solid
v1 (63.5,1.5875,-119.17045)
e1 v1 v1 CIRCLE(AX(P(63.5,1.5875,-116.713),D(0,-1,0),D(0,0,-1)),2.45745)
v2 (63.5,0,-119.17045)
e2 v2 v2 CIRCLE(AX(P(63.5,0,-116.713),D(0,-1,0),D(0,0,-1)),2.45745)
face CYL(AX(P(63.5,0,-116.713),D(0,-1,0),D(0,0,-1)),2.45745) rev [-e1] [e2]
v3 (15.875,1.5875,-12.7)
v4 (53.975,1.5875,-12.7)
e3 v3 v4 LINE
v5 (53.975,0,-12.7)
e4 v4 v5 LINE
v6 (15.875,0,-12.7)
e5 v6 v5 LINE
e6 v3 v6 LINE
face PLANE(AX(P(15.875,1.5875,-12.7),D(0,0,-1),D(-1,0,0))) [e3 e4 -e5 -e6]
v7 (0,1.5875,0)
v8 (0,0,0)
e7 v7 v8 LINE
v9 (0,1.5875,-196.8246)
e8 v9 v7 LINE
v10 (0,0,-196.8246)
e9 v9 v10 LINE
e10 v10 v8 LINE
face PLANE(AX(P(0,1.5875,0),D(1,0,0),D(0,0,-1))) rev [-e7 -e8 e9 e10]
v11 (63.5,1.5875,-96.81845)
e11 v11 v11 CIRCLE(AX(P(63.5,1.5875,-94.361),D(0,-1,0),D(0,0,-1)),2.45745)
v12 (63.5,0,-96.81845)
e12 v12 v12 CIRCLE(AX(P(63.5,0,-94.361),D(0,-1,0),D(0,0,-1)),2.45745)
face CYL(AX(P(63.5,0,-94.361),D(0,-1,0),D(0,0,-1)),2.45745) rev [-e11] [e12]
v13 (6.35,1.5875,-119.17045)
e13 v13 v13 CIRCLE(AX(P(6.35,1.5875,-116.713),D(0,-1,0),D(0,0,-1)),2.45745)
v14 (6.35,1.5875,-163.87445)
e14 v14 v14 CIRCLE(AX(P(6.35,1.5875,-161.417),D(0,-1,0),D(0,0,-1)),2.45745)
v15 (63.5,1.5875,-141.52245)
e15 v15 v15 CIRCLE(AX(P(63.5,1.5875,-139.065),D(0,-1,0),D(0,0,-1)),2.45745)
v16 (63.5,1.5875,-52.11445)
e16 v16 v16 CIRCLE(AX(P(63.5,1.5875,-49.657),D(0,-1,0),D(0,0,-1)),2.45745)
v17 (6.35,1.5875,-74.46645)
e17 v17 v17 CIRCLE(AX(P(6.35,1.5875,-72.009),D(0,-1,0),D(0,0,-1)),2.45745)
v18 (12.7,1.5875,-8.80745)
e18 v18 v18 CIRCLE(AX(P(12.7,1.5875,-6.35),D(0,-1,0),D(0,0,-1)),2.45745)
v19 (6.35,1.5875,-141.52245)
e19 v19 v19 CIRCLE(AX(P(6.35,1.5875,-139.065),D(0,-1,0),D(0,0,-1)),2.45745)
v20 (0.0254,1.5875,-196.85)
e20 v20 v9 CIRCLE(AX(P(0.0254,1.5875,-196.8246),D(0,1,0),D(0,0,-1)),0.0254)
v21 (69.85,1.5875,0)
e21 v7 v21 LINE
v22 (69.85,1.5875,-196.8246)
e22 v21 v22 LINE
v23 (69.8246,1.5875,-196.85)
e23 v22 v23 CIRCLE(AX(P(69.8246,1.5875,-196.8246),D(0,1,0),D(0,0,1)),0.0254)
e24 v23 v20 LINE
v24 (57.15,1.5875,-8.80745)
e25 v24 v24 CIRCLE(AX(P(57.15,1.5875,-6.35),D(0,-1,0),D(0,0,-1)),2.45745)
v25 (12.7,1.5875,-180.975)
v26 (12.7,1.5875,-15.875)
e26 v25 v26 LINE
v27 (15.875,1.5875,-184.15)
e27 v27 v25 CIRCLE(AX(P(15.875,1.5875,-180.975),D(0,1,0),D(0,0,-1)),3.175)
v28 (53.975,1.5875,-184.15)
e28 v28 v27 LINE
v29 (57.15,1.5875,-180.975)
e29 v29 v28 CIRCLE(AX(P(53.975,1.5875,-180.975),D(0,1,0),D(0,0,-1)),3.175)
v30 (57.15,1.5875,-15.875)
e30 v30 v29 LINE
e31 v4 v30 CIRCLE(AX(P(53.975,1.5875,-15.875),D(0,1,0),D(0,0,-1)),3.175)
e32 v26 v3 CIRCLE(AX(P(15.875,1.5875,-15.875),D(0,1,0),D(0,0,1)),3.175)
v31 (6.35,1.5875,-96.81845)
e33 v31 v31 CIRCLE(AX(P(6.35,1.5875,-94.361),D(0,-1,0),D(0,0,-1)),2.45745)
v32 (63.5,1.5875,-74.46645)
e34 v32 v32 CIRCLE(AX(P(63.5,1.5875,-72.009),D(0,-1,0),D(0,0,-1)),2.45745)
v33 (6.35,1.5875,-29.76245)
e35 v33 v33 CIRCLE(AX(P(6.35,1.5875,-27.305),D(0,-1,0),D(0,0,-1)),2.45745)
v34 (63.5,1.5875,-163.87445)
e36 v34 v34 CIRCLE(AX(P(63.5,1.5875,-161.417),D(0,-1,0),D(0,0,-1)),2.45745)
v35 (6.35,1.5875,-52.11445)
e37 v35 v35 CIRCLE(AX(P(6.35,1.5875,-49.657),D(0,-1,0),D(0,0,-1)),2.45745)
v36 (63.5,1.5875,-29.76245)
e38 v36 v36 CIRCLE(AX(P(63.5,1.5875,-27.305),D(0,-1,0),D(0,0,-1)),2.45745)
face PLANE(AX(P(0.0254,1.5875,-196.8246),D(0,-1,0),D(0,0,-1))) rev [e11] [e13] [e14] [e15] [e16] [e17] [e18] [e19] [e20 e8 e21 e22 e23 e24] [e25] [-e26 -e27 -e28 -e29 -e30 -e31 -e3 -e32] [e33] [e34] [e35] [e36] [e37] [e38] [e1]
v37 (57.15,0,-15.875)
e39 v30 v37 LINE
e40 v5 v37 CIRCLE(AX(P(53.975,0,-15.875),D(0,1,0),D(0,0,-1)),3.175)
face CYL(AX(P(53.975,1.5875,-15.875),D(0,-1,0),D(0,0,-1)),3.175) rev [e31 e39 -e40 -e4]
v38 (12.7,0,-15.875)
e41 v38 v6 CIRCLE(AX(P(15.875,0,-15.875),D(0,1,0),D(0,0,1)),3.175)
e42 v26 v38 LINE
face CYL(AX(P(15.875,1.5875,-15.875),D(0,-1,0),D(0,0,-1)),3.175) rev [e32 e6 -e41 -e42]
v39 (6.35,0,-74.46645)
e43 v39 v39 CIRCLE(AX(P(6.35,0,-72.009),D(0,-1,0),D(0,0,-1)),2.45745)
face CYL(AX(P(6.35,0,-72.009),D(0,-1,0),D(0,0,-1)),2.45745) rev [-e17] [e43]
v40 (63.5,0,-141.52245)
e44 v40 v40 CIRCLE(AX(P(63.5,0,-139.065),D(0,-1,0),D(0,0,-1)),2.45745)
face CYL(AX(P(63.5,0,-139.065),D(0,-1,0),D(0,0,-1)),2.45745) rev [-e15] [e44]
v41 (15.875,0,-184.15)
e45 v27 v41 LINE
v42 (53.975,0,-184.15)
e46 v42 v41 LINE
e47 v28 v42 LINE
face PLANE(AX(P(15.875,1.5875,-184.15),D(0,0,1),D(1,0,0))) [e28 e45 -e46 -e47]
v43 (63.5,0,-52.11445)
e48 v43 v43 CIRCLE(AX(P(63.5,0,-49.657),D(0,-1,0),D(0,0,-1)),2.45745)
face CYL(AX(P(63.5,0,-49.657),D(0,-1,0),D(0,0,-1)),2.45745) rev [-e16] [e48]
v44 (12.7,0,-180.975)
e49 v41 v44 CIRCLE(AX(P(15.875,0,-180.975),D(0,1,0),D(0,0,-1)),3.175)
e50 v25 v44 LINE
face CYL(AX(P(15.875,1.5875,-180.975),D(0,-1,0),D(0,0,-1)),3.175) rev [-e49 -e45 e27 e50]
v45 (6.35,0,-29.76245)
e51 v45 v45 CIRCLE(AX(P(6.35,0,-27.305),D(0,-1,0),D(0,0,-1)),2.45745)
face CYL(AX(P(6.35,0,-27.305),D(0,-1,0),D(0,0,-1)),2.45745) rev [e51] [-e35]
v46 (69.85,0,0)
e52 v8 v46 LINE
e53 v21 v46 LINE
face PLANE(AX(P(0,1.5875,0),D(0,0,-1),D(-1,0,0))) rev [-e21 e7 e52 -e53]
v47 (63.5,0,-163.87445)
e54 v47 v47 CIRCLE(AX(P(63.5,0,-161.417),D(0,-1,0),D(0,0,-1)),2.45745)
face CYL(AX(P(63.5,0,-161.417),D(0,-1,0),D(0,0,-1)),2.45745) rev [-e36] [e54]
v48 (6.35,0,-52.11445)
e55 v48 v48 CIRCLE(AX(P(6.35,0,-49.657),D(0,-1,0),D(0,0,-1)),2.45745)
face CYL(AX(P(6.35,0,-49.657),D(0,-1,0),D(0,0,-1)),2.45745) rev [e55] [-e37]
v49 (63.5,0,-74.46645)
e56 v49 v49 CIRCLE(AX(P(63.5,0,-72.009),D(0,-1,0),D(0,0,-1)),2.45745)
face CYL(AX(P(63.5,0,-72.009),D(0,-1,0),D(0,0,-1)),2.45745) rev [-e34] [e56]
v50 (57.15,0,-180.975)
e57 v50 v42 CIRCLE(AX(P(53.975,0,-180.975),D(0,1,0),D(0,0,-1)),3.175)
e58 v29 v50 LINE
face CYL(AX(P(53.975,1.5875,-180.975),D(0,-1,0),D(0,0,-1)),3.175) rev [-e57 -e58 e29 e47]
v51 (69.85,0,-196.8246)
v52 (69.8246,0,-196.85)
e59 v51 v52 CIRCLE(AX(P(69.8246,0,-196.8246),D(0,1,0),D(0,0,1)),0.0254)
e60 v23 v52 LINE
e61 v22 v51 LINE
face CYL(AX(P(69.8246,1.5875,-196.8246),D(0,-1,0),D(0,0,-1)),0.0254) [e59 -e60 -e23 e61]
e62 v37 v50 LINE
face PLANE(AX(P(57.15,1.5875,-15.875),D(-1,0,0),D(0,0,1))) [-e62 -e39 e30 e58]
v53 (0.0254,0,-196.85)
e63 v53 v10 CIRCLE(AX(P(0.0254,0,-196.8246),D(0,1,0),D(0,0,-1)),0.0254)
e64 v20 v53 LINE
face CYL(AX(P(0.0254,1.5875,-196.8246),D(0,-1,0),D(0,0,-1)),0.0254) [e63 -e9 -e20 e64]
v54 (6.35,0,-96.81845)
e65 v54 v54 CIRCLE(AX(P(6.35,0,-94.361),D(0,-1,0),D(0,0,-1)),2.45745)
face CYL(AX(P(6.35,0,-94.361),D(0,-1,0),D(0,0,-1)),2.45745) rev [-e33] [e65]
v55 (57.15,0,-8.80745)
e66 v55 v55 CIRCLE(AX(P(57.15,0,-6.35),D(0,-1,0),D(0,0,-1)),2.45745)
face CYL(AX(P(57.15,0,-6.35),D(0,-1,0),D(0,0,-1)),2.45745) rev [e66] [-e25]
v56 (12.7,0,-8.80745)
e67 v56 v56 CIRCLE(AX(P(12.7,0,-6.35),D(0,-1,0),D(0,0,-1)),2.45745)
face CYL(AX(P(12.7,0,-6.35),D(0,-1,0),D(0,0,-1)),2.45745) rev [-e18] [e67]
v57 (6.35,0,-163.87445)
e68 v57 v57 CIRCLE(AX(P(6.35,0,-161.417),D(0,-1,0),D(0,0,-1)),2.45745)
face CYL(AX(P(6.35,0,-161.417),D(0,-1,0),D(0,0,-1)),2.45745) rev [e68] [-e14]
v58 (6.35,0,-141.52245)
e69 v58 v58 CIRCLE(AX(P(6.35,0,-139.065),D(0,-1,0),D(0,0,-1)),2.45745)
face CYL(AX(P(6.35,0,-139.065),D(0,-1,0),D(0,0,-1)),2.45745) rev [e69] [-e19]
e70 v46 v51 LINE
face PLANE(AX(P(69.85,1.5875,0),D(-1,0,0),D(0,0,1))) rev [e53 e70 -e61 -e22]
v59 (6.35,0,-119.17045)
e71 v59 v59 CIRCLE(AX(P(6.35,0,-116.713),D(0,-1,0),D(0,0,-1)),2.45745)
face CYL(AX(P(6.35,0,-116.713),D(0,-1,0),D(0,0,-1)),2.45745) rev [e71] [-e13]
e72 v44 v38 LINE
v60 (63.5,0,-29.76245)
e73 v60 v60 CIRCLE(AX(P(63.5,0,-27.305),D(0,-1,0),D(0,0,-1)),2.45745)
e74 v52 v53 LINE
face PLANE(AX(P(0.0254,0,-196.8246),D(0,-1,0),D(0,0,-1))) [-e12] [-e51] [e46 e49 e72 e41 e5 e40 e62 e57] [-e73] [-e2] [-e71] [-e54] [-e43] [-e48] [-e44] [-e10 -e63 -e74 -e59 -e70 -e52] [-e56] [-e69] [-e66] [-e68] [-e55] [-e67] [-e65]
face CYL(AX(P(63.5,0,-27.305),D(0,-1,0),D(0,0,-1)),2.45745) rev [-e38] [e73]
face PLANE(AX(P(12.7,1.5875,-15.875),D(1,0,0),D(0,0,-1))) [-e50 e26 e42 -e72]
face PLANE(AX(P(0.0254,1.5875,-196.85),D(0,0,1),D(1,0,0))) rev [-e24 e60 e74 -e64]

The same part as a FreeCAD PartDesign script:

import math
import FreeCAD as App
import Part
import Sketcher

V = App.Vector
Q = App.Units.Quantity

doc = App.newDocument("Part")
body = doc.addObject("PartDesign::Body", "Body")

sketch1 = doc.addObject("Sketcher::SketchObject", "Sketch")
body.addObject(sketch1)
sketch1.AttachmentSupport = (doc.XZ_Plane, [""])
sketch1.MapMode = "FlatFace"
sketch1.addGeometry([
    Part.LineSegment(V(0, 0, 0), V(69.85, 0, 0)),
    Part.LineSegment(V(69.85, 0, 0), V(69.85, -196.8246, 0)),
    Part.ArcOfCircle(Part.Circle(V(69.8246, -196.8246, 0), V(0, 0, 1), 0.0254), math.radians(-89.999998), math.radians(-0.000002)),
    Part.LineSegment(V(69.8246, -196.85, 0), V(0.0254, -196.85, 0)),
    Part.ArcOfCircle(Part.Circle(V(0.0254, -196.8246, 0), V(0, 0, 1), 0.0254), math.radians(-179.999998), math.radians(-90.000002)),
    Part.LineSegment(V(0, -196.8246, 0), V(0, 0, 0)),
    Part.ArcOfCircle(Part.Circle(V(15.875, -15.875, 0), V(0, 0, 1), 3.175), math.radians(90), math.radians(180)),
    Part.LineSegment(V(12.7, -15.875, 0), V(12.7, -180.975, 0)),
    Part.ArcOfCircle(Part.Circle(V(15.875, -180.975, 0), V(0, 0, 1), 3.175), math.radians(-180), math.radians(-90)),
    Part.LineSegment(V(15.875, -184.15, 0), V(53.975, -184.15, 0)),
    Part.ArcOfCircle(Part.Circle(V(53.975, -180.975, 0), V(0, 0, 1), 3.175), math.radians(-90), math.radians(0)),
    Part.LineSegment(V(57.15, -180.975, 0), V(57.15, -15.875, 0)),
    Part.ArcOfCircle(Part.Circle(V(53.975, -15.875, 0), V(0, 0, 1), 3.175), math.radians(0), math.radians(90)),
    Part.LineSegment(V(53.975, -12.7, 0), V(15.875, -12.7, 0)),
], False)
sketch1.addConstraint([
    Sketcher.Constraint("Coincident", 0, 2, 1, 1),
    Sketcher.Constraint("Tangent", 1, 2, 2, 2),
    Sketcher.Constraint("Tangent", 2, 1, 3, 1),
    Sketcher.Constraint("Tangent", 3, 2, 4, 2),
    Sketcher.Constraint("Tangent", 4, 1, 5, 1),
    Sketcher.Constraint("Coincident", 5, 2, 0, 1),
    Sketcher.Constraint("Tangent", 6, 2, 7, 1),
    Sketcher.Constraint("Tangent", 7, 2, 8, 1),
    Sketcher.Constraint("Tangent", 8, 2, 9, 1),
    Sketcher.Constraint("Tangent", 9, 2, 10, 1),
    Sketcher.Constraint("Tangent", 10, 2, 11, 1),
    Sketcher.Constraint("Tangent", 11, 2, 12, 1),
    Sketcher.Constraint("Tangent", 12, 2, 13, 1),
    Sketcher.Constraint("Tangent", 13, 2, 6, 1),
    Sketcher.Constraint("Horizontal", 0),
    Sketcher.Constraint("Vertical", 1),
    Sketcher.Constraint("Horizontal", 3),
    Sketcher.Constraint("Vertical", 5),
    Sketcher.Constraint("Vertical", 7),
    Sketcher.Constraint("Horizontal", 9),
    Sketcher.Constraint("Vertical", 11),
    Sketcher.Constraint("Horizontal", 13),
    Sketcher.Constraint("Coincident", 5, 2, -1, 1),
    Sketcher.Constraint("Equal", 2, 4),
    Sketcher.Constraint("Equal", 6, 8),
    Sketcher.Constraint("Equal", 8, 10),
    Sketcher.Constraint("Equal", 10, 12),
    Sketcher.Constraint("DistanceX", 9, 1, 9, 2, Q("1.5 in")),
    Sketcher.Constraint("DistanceY", 7, 2, 7, 1, Q("6.5 in")),
    Sketcher.Constraint("Radius", 2, Q("0.001 in")),
    Sketcher.Constraint("Radius", 6, Q("0.125 in")),
    Sketcher.Constraint("DistanceX", 0, 1, 0, 2, Q("2.75 in")),
    Sketcher.Constraint("DistanceX", -1, 1, 6, 2, Q("0.5 in")),
    Sketcher.Constraint("DistanceY", 12, 2, -1, 1, Q("0.5 in")),
    Sketcher.Constraint("DistanceY", 3, 2, 8, 2, Q("0.5 in")),
])
pad1 = doc.addObject("PartDesign::Pad", "Pad")
body.addObject(pad1)
pad1.Profile = sketch1
pad1.Length = Q("0.0625 in")
pad1.Reversed = True

sketch2 = doc.addObject("Sketcher::SketchObject", "Sketch001")
body.addObject(sketch2)
sketch2.AttachmentSupport = (doc.XZ_Plane, [""])
sketch2.MapMode = "FlatFace"
sketch2.addGeometry([
    Part.Circle(V(6.35, -161.417, 0), V(0, 0, 1), 2.45745),
    Part.Circle(V(57.15, -6.35, 0), V(0, 0, 1), 2.45745),
    Part.Circle(V(12.7, -6.35, 0), V(0, 0, 1), 2.45745),
    Part.Circle(V(63.5, -27.305, 0), V(0, 0, 1), 2.45745),
    Part.Circle(V(6.35, -27.305, 0), V(0, 0, 1), 2.45745),
    Part.Circle(V(63.5, -139.065, 0), V(0, 0, 1), 2.45745),
    Part.Circle(V(63.5, -116.713, 0), V(0, 0, 1), 2.45745),
    Part.Circle(V(63.5, -94.361, 0), V(0, 0, 1), 2.45745),
    Part.Circle(V(63.5, -72.009, 0), V(0, 0, 1), 2.45745),
    Part.Circle(V(6.35, -49.657, 0), V(0, 0, 1), 2.45745),
    Part.Circle(V(6.35, -72.009, 0), V(0, 0, 1), 2.45745),
    Part.Circle(V(6.35, -94.361, 0), V(0, 0, 1), 2.45745),
    Part.Circle(V(6.35, -116.713, 0), V(0, 0, 1), 2.45745),
    Part.Circle(V(6.35, -139.065, 0), V(0, 0, 1), 2.45745),
    Part.Circle(V(63.5, -49.657, 0), V(0, 0, 1), 2.45745),
    Part.Circle(V(63.5, -161.417, 0), V(0, 0, 1), 2.45745),
], False)
sketch2.addConstraint([
    Sketcher.Constraint("Equal", 0, 1),
    Sketcher.Constraint("Equal", 1, 2),
    Sketcher.Constraint("Equal", 2, 3),
    Sketcher.Constraint("Equal", 3, 4),
    Sketcher.Constraint("Equal", 4, 5),
    Sketcher.Constraint("Equal", 5, 6),
    Sketcher.Constraint("Equal", 6, 7),
    Sketcher.Constraint("Equal", 7, 8),
    Sketcher.Constraint("Equal", 8, 9),
    Sketcher.Constraint("Equal", 9, 10),
    Sketcher.Constraint("Equal", 10, 11),
    Sketcher.Constraint("Equal", 11, 12),
    Sketcher.Constraint("Equal", 12, 13),
    Sketcher.Constraint("Equal", 13, 14),
    Sketcher.Constraint("Equal", 14, 15),
    Sketcher.Constraint("Horizontal", 1, 3, 2, 3),
    Sketcher.Constraint("Horizontal", 3, 3, 4, 3),
    Sketcher.Constraint("Horizontal", 8, 3, 10, 3),
    Sketcher.Constraint("Horizontal", 7, 3, 11, 3),
    Sketcher.Constraint("Horizontal", 6, 3, 12, 3),
    Sketcher.Constraint("Horizontal", 5, 3, 13, 3),
    Sketcher.Constraint("Horizontal", 9, 3, 14, 3),
    Sketcher.Constraint("Horizontal", 0, 3, 15, 3),
    Sketcher.Constraint("Vertical", 0, 3, 4, 3),
    Sketcher.Constraint("Vertical", 3, 3, 5, 3),
    Sketcher.Constraint("Vertical", 5, 3, 6, 3),
    Sketcher.Constraint("Vertical", 6, 3, 7, 3),
    Sketcher.Constraint("Vertical", 7, 3, 8, 3),
    Sketcher.Constraint("Vertical", 4, 3, 9, 3),
    Sketcher.Constraint("Vertical", 9, 3, 10, 3),
    Sketcher.Constraint("Vertical", 10, 3, 11, 3),
    Sketcher.Constraint("Vertical", 11, 3, 12, 3),
    Sketcher.Constraint("Vertical", 12, 3, 13, 3),
    Sketcher.Constraint("Vertical", 8, 3, 14, 3),
    Sketcher.Constraint("Vertical", 14, 3, 15, 3),
    Sketcher.Constraint("DistanceX", 0, 3, 1, 3, Q("2 in")),
    Sketcher.Constraint("DistanceX", 2, 3, 3, 3, Q("2 in")),
    Sketcher.Constraint("Diameter", 0, Q("0.1935 in")),
    Sketcher.Constraint("DistanceX", -1, 1, 2, 3, Q("0.5 in")),
    Sketcher.Constraint("DistanceY", 5, 3, 3, 3, Q("4.4 in")),
    Sketcher.Constraint("DistanceX", -1, 1, 0, 3, Q("0.25 in")),
    Sketcher.Constraint("DistanceY", 1, 3, -1, 1, Q("0.25 in")),
    Sketcher.Constraint("DistanceY", 0, 3, 3, 3, Q("5.28 in")),
    Sketcher.Constraint("DistanceY", 5, 3, 6, 3, Q("0.88 in")),
    Sketcher.Constraint("DistanceY", 6, 3, 7, 3, Q("0.88 in")),
    Sketcher.Constraint("DistanceY", 7, 3, 8, 3, Q("0.88 in")),
    Sketcher.Constraint("DistanceY", 9, 3, 4, 3, Q("0.88 in")),
    Sketcher.Constraint("DistanceY", 0, 3, -1, 1, Q("6.355 in")),
])
doc.recompute()
hole = doc.addObject("PartDesign::Hole", "Hole")
body.addObject(hole)
hole.Profile = sketch2
hole.ThreadType = "None"
hole.Diameter = Q("0.1935 in")
hole.DepthType = "ThroughAll"

doc.recompute()
